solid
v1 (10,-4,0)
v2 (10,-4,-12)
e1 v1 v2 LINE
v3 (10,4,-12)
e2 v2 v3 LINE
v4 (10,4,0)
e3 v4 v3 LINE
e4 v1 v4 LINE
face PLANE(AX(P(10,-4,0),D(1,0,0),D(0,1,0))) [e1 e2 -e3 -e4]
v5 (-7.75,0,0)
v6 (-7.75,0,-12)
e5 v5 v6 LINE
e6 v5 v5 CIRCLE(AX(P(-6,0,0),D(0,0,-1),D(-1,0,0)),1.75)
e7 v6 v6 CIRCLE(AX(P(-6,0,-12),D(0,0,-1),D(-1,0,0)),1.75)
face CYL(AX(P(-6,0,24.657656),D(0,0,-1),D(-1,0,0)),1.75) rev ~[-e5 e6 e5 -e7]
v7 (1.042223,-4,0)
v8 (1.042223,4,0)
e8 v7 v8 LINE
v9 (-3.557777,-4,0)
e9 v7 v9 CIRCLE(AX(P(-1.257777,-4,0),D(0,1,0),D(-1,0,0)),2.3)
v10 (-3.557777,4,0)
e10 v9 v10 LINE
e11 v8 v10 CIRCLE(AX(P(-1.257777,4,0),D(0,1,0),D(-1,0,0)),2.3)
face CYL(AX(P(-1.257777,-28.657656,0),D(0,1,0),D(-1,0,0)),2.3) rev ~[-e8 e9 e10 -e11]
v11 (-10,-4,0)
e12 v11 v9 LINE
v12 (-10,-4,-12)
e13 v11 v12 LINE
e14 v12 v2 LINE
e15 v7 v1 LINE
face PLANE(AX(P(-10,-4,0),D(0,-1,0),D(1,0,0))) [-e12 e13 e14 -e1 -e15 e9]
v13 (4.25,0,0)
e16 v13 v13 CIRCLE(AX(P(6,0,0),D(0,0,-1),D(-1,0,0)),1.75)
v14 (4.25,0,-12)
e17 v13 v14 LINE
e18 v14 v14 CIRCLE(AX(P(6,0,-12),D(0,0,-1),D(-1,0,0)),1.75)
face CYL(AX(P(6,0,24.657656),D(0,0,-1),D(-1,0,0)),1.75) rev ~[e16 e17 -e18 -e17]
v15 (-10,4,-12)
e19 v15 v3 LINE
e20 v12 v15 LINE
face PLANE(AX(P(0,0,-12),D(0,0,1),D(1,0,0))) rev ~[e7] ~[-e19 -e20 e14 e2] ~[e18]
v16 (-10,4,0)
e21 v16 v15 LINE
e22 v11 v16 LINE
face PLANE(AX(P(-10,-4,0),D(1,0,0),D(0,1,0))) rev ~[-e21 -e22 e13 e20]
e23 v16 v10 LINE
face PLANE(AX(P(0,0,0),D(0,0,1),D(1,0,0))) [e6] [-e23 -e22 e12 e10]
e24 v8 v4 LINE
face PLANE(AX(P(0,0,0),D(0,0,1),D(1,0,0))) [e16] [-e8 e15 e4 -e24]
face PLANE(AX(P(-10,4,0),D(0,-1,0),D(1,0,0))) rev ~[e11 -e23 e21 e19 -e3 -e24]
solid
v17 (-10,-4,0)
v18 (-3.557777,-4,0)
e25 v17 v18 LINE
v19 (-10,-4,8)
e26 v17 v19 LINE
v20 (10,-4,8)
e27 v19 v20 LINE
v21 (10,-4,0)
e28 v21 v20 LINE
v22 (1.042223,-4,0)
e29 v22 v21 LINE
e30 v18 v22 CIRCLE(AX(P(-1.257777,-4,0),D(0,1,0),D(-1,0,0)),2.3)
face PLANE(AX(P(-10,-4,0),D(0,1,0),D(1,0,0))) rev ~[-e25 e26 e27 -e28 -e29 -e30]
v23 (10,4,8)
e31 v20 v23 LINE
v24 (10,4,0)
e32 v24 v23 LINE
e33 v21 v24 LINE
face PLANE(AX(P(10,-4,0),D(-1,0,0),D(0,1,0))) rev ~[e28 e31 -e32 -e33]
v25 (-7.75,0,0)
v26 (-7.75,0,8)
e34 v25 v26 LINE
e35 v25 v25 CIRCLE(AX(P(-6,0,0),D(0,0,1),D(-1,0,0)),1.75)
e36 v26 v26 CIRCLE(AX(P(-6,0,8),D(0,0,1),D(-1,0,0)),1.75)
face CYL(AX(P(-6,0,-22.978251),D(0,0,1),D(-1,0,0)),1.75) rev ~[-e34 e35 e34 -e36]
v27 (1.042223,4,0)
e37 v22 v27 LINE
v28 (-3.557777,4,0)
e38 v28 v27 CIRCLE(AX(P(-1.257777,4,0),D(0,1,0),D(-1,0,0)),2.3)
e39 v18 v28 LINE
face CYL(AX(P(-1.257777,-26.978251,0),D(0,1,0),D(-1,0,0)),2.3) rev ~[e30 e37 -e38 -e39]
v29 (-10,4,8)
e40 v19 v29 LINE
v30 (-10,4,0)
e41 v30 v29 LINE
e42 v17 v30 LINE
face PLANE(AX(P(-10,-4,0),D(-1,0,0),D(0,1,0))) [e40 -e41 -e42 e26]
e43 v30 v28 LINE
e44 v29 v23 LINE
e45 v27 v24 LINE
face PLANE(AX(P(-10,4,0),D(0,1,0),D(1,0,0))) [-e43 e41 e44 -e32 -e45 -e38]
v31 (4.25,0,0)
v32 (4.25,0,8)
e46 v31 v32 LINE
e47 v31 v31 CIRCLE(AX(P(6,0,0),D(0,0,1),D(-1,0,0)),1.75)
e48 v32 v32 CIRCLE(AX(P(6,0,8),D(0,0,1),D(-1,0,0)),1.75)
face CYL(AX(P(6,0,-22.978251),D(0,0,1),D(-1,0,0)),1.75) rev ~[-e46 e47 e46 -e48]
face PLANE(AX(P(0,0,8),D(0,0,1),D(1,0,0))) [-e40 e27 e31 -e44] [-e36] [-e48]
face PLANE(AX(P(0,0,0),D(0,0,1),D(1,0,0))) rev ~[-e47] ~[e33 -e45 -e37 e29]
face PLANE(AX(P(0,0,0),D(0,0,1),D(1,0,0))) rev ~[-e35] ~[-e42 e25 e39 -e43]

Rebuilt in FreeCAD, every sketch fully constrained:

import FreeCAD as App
import Part
import Sketcher

V = App.Vector
Q = App.Units.Quantity

doc = App.newDocument("Part")
params = doc.addObject("Spreadsheet::Sheet", "Params")
for row, (alias, value) in enumerate([
    ("sketch1_width", "20 mm"),
    ("sketch1_height", "8 mm"),
    ("pad1_length", "12 mm"),
    ("sketch2_diameter", "3.5 mm"),
    ("hole_diameter", "3.5 mm"),
    ("sketch3_diameter", "4.6 mm"),
    ("hole2_diameter", "4.6 mm"),
    ("sketch4_width", "20 mm"),
    ("sketch4_height", "8 mm"),
    ("pad2_length", "8 mm"),
    ("sketch5_diameter", "3.5 mm"),
    ("hole3_diameter", "3.5 mm"),
    ("sketch6_diameter", "4.6 mm"),
    ("hole4_diameter", "4.6 mm"),
], start=1):
    params.set(f"A{row}", alias)
    params.set(f"B{row}", "=" + value)
    params.setAlias(f"B{row}", alias)

body = doc.addObject("PartDesign::Body", "Body")

# Sketch on XY plane
sketch1 = body.newObject("Sketcher::SketchObject", "Sketch")
sketch1.AttachmentSupport = (doc.getObject("XY_Plane"), [""])
sketch1.MapMode = "FlatFace"
sketch1.addGeometry(Part.LineSegment(V(-10, 4, 0), V(-10, -4, 0)), False)
sketch1.addGeometry(Part.LineSegment(V(-10, -4, 0), V(10, -4, 0)), False)
sketch1.addGeometry(Part.LineSegment(V(10, -4, 0), V(10, 4, 0)), False)
sketch1.addGeometry(Part.LineSegment(V(10, 4, 0), V(-10, 4, 0)), False)
sketch1.addConstraint(Sketcher.Constraint("Coincident", 0, 2, 1, 1))
sketch1.addConstraint(Sketcher.Constraint("Coincident", 1, 2, 2, 1))
sketch1.addConstraint(Sketcher.Constraint("Coincident", 2, 2, 3, 1))
sketch1.addConstraint(Sketcher.Constraint("Coincident", 3, 2, 0, 1))
sketch1.addConstraint(Sketcher.Constraint("Vertical", 0))
sketch1.addConstraint(Sketcher.Constraint("Horizontal", 1))
sketch1.addConstraint(Sketcher.Constraint("Vertical", 2))
sketch1.addConstraint(Sketcher.Constraint("Horizontal", 3))
sketch1.addConstraint(Sketcher.Constraint("Symmetric", 0, 2, 2, 2, -1, 1))
sketch1.addConstraint(Sketcher.Constraint("DistanceX", 1, 1, 1, 2, Q("20 mm")))
sketch1.addConstraint(Sketcher.Constraint("DistanceY", 0, 2, 0, 1, Q("8 mm")))
sketch1.setExpression("Constraints[9]", "Params.sketch1_width")
sketch1.setExpression("Constraints[10]", "Params.sketch1_height")
pad1 = body.newObject("PartDesign::Pad", "Pad")
pad1.Profile = sketch1
pad1.setExpression("Length", "Params.pad1_length")
pad1.Reversed = True

# Sketch on XY plane
sketch2 = body.newObject("Sketcher::SketchObject", "Sketch001")
sketch2.AttachmentSupport = (doc.getObject("XY_Plane"), [""])
sketch2.MapMode = "FlatFace"
sketch2.addGeometry(Part.Circle(V(6, 0, 0), V(0, 0, 1), 1.8), False)
sketch2.addGeometry(Part.Circle(V(-6, 0, 0), V(0, 0, 1), 1.8), False)
sketch2.addConstraint(Sketcher.Constraint("Equal", 0, 1))
sketch2.addConstraint(Sketcher.Constraint("Symmetric", 0, 3, 1, 3, -1, 1))
sketch2.addConstraint(Sketcher.Constraint("PointOnObject", 0, 3, -1))
sketch2.addConstraint(Sketcher.Constraint("Diameter", 0, Q("3.5 mm")))
sketch2.addConstraint(Sketcher.Constraint("DistanceX", -1, 1, 0, 3, Q("6 mm")))
sketch2.setExpression("Constraints[3]", "Params.sketch2_diameter")
doc.recompute()
hole = body.newObject("PartDesign::Hole", "Hole")
hole.Profile = sketch2
hole.ThreadType = "None"
hole.setExpression("Diameter", "Params.hole_diameter")
hole.DepthType = "ThroughAll"

# Sketch on XZ plane
sketch3 = body.newObject("Sketcher::SketchObject", "Sketch002")
sketch3.AttachmentSupport = (doc.getObject("XZ_Plane"), [""])
sketch3.MapMode = "FlatFace"
sketch3.AttachmentOffset = App.Placement(V(0, 0, 4), App.Rotation())
sketch3.addGeometry(Part.Circle(V(-1.3, 0, 0), V(0, 0, 1), 2.3), False)
sketch3.addConstraint(Sketcher.Constraint("PointOnObject", 0, 3, -1))
sketch3.addConstraint(Sketcher.Constraint("Diameter", 0, Q("4.6 mm")))
sketch3.addConstraint(Sketcher.Constraint("DistanceX", 0, 3, -1, 1, Q("1.257777 mm")))
sketch3.setExpression("Constraints[1]", "Params.sketch3_diameter")
doc.recompute()
hole2 = body.newObject("PartDesign::Hole", "Hole001")
hole2.Profile = sketch3
hole2.ThreadType = "None"
hole2.setExpression("Diameter", "Params.hole2_diameter")
hole2.DepthType = "ThroughAll"
body2 = doc.addObject("PartDesign::Body", "Body001")

# Sketch on XY plane
sketch4 = body2.newObject("Sketcher::SketchObject", "Sketch003")
sketch4.AttachmentSupport = (doc.getObject("XY_Plane001"), [""])
sketch4.MapMode = "FlatFace"
sketch4.addGeometry(Part.LineSegment(V(-10, 4, 0), V(-10, -4, 0)), False)
sketch4.addGeometry(Part.LineSegment(V(-10, -4, 0), V(10, -4, 0)), False)
sketch4.addGeometry(Part.LineSegment(V(10, -4, 0), V(10, 4, 0)), False)
sketch4.addGeometry(Part.LineSegment(V(10, 4, 0), V(-10, 4, 0)), False)
sketch4.addConstraint(Sketcher.Constraint("Coincident", 0, 2, 1, 1))
sketch4.addConstraint(Sketcher.Constraint("Coincident", 1, 2, 2, 1))
sketch4.addConstraint(Sketcher.Constraint("Coincident", 2, 2, 3, 1))
sketch4.addConstraint(Sketcher.Constraint("Coincident", 3, 2, 0, 1))
sketch4.addConstraint(Sketcher.Constraint("Vertical", 0))
sketch4.addConstraint(Sketcher.Constraint("Horizontal", 1))
sketch4.addConstraint(Sketcher.Constraint("Vertical", 2))
sketch4.addConstraint(Sketcher.Constraint("Horizontal", 3))
sketch4.addConstraint(Sketcher.Constraint("Symmetric", 0, 2, 2, 2, -1, 1))
sketch4.addConstraint(Sketcher.Constraint("DistanceX", 1, 1, 1, 2, Q("20 mm")))
sketch4.addConstraint(Sketcher.Constraint("DistanceY", 0, 2, 0, 1, Q("8 mm")))
sketch4.setExpression("Constraints[9]", "Params.sketch4_width")
sketch4.setExpression("Constraints[10]", "Params.sketch4_height")
pad2 = body2.newObject("PartDesign::Pad", "Pad001")
pad2.Profile = sketch4
pad2.setExpression("Length", "Params.pad2_length")

# Sketch on XY plane
sketch5 = body2.newObject("Sketcher::SketchObject", "Sketch004")
sketch5.AttachmentSupport = (doc.getObject("XY_Plane001"), [""])
sketch5.MapMode = "FlatFace"
sketch5.addGeometry(Part.Circle(V(-6, 0, 0), V(0, 0, 1), 1.8), False)
sketch5.addGeometry(Part.Circle(V(6, 0, 0), V(0, 0, 1), 1.8), False)
sketch5.addConstraint(Sketcher.Constraint("Equal", 0, 1))
sketch5.addConstraint(Sketcher.Constraint("Symmetric", 0, 3, 1, 3, -1, 1))
sketch5.addConstraint(Sketcher.Constraint("PointOnObject", 0, 3, -1))
sketch5.addConstraint(Sketcher.Constraint("Diameter", 0, Q("3.5 mm")))
sketch5.addConstraint(Sketcher.Constraint("DistanceX", 0, 3, -1, 1, Q("6 mm")))
sketch5.setExpression("Constraints[3]", "Params.sketch5_diameter")
doc.recompute()
hole3 = body2.newObject("PartDesign::Hole", "Hole002")
hole3.Profile = sketch5
hole3.ThreadType = "None"
hole3.setExpression("Diameter", "Params.hole3_diameter")
hole3.DepthType = "ThroughAll"
hole3.Reversed = True

# Sketch on XZ plane
sketch6 = body2.newObject("Sketcher::SketchObject", "Sketch005")
sketch6.AttachmentSupport = (doc.getObject("XZ_Plane001"), [""])
sketch6.MapMode = "FlatFace"
sketch6.AttachmentOffset = App.Placement(V(0, 0, 4), App.Rotation())
sketch6.addGeometry(Part.Circle(V(-1.3, 0, 0), V(0, 0, 1), 2.3), False)
sketch6.addConstraint(Sketcher.Constraint("PointOnObject", 0, 3, -1))
sketch6.addConstraint(Sketcher.Constraint("Diameter", 0, Q("4.6 mm")))
sketch6.addConstraint(Sketcher.Constraint("DistanceX", 0, 3, -1, 1, Q("1.257777 mm")))
sketch6.setExpression("Constraints[1]", "Params.sketch6_diameter")
doc.recompute()
hole4 = body2.newObject("PartDesign::Hole", "Hole003")
hole4.Profile = sketch6
hole4.ThreadType = "None"
hole4.setExpression("Diameter", "Params.hole4_diameter")
hole4.DepthType = "ThroughAll"

doc.recompute()
